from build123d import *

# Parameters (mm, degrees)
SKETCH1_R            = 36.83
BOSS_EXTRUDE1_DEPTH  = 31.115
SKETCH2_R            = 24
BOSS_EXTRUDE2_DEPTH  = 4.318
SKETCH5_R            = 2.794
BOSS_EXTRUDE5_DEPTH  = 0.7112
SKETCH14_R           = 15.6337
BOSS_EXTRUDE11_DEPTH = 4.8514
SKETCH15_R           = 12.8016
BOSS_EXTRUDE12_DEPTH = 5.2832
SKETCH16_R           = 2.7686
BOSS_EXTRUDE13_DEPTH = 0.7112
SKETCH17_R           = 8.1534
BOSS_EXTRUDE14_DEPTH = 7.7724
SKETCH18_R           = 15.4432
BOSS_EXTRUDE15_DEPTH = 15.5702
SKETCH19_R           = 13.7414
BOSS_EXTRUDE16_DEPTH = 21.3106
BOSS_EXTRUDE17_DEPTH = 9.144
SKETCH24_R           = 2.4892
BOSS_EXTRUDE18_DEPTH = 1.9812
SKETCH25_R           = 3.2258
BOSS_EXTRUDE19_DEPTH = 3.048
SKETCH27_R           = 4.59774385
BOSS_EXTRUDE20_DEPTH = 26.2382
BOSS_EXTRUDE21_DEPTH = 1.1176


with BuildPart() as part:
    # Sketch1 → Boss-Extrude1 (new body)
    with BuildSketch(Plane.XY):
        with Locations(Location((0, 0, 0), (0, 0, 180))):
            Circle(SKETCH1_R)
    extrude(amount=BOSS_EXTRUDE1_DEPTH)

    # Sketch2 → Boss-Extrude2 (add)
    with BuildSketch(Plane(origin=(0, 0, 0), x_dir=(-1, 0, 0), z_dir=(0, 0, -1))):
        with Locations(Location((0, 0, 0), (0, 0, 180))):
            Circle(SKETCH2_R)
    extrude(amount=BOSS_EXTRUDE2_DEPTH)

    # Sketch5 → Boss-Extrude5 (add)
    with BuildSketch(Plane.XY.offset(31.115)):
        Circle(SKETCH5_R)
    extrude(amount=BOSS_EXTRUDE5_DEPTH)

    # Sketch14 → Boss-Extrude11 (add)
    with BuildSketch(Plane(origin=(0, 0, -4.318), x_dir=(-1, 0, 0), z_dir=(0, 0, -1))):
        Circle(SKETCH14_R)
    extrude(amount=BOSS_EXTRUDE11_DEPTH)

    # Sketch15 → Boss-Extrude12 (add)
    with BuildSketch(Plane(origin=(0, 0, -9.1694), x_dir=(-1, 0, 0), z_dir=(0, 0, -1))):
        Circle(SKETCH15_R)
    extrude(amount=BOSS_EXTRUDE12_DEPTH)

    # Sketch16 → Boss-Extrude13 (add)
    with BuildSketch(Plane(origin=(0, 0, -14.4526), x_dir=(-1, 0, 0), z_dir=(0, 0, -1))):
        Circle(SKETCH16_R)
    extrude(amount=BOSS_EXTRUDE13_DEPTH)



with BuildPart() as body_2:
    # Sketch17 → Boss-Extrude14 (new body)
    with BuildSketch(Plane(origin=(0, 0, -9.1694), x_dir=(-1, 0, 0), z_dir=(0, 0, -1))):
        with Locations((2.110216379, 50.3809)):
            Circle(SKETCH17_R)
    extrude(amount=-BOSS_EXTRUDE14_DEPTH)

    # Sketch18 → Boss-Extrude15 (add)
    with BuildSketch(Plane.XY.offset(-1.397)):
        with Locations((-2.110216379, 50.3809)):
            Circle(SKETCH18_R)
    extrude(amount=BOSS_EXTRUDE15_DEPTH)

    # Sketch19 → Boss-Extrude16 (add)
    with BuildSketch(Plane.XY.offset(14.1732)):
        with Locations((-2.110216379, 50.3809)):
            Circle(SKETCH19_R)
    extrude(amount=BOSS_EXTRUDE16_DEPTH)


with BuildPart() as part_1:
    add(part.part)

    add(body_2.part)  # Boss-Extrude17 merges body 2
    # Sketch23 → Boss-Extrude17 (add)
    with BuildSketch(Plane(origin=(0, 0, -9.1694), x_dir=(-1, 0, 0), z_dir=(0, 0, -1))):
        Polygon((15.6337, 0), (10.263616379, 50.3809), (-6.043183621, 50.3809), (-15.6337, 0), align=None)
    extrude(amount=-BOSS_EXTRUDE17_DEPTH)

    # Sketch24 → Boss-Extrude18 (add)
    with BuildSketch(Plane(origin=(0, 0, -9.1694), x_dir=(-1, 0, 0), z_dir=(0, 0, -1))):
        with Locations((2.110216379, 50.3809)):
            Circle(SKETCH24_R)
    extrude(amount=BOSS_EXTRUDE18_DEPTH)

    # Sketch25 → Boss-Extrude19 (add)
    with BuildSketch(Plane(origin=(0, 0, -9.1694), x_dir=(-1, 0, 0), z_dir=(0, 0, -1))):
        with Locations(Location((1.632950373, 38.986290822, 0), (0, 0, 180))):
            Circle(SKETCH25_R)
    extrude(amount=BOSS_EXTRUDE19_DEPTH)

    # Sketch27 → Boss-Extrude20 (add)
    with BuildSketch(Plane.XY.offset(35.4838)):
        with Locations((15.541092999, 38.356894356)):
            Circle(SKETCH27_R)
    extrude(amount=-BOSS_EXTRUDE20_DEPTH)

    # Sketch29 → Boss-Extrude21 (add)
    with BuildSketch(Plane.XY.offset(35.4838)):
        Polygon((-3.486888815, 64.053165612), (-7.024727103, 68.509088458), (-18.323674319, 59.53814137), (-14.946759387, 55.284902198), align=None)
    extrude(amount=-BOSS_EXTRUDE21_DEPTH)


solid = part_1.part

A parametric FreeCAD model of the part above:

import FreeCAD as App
import Part
import Sketcher
Q = App.Units.Quantity

doc = App.newDocument("Part")
body = doc.addObject("PartDesign::Body", "Body")

# Sketch on XY plane
sketch1 = body.newObject("Sketcher::SketchObject", "Sketch")
sketch1.AttachmentSupport = (doc.getObject("XY_Plane"), [""])
sketch1.MapMode = "FlatFace"
sketch1.addGeometry(Part.Circle(App.Vector(0, 0, 0), App.Vector(0, 0, 1), 37), False)
sketch1.addConstraint([
    Sketcher.Constraint("Coincident", 0, 3, -1, 1),
    Sketcher.Constraint("Diameter", 0, Q("2.9 in")),
])
pad1 = body.newObject("PartDesign::Pad", "Pad")
pad1.Profile = sketch1
pad1.Length = Q("1.225 in")

# Sketch on XY plane
sketch2 = body.newObject("Sketcher::SketchObject", "Sketch001")
sketch2.AttachmentSupport = (doc.getObject("XY_Plane"), [""])
sketch2.MapMode = "FlatFace"
sketch2.addGeometry(Part.Circle(App.Vector(0, 0, 0), App.Vector(0, 0, 1), 24), False)
sketch2.addConstraint([
    Sketcher.Constraint("Coincident", 0, 3, -1, 1),
    Sketcher.Constraint("Diameter", 0, Q("48 mm")),
])
pad2 = body.newObject("PartDesign::Pad", "Pad001")
pad2.Profile = sketch2
pad2.Length = Q("0.17 in")
pad2.Reversed = True

# Sketch on XY plane
sketch3 = body.newObject("Sketcher::SketchObject", "Sketch002")
sketch3.AttachmentSupport = (doc.getObject("XY_Plane"), [""])
sketch3.MapMode = "FlatFace"
sketch3.AttachmentOffset = App.Placement(App.Vector(0, 0, 1.225 * 25.4), App.Rotation())
sketch3.addGeometry(Part.Circle(App.Vector(0, 0, 0), App.Vector(0, 0, 1), 2.8), False)
sketch3.addConstraint([
    Sketcher.Constraint("Coincident", 0, 3, -1, 1),
    Sketcher.Constraint("Diameter", 0, Q("0.22 in")),
])
pad3 = body.newObject("PartDesign::Pad", "Pad002")
pad3.Profile = sketch3
pad3.Length = Q("0.028 in")

# Sketch on XY plane
sketch4 = body.newObject("Sketcher::SketchObject", "Sketch003")
sketch4.AttachmentSupport = (doc.getObject("XY_Plane"), [""])
sketch4.MapMode = "FlatFace"
sketch4.AttachmentOffset = App.Placement(App.Vector(0, 0, -0.17 * 25.4), App.Rotation())
sketch4.addGeometry(Part.Circle(App.Vector(0, 0, 0), App.Vector(0, 0, 1), 16), False)
sketch4.addConstraint([
    Sketcher.Constraint("Coincident", 0, 3, -1, 1),
    Sketcher.Constraint("Diameter", 0, Q("1.231 in")),
])
pad4 = body.newObject("PartDesign::Pad", "Pad003")
pad4.Profile = sketch4
pad4.Length = Q("0.191 in")
pad4.Reversed = True

# Sketch on XY plane
sketch5 = body.newObject("Sketcher::SketchObject", "Sketch004")
sketch5.AttachmentSupport = (doc.getObject("XY_Plane"), [""])
sketch5.MapMode = "FlatFace"
sketch5.AttachmentOffset = App.Placement(App.Vector(0, 0, -0.361 * 25.4), App.Rotation())
sketch5.addGeometry(Part.Circle(App.Vector(0, 0, 0), App.Vector(0, 0, 1), 13), False)
sketch5.addConstraint([
    Sketcher.Constraint("Coincident", 0, 3, -1, 1),
    Sketcher.Constraint("Diameter", 0, Q("1.008 in")),
])
pad5 = body.newObject("PartDesign::Pad", "Pad004")
pad5.Profile = sketch5
pad5.Length = Q("0.208 in")
pad5.Reversed = True

# Sketch on XY plane
sketch6 = body.newObject("Sketcher::SketchObject", "Sketch005")
sketch6.AttachmentSupport = (doc.getObject("XY_Plane"), [""])
sketch6.MapMode = "FlatFace"
sketch6.AttachmentOffset = App.Placement(App.Vector(0, 0, -0.569 * 25.4), App.Rotation())
sketch6.addGeometry(Part.Circle(App.Vector(0, 0, 0), App.Vector(0, 0, 1), 2.8), False)
sketch6.addConstraint([
    Sketcher.Constraint("Coincident", 0, 3, -1, 1),
    Sketcher.Constraint("Diameter", 0, Q("0.218 in")),
])
pad6 = body.newObject("PartDesign::Pad", "Pad005")
pad6.Profile = sketch6
pad6.Length = Q("0.028 in")
pad6.Reversed = True
body2 = doc.addObject("PartDesign::Body", "Body001")

# Sketch on XY plane
sketch7 = body2.newObject("Sketcher::SketchObject", "Sketch006")
sketch7.AttachmentSupport = (doc.getObject("XY_Plane001"), [""])
sketch7.MapMode = "FlatFace"
sketch7.AttachmentOffset = App.Placement(App.Vector(0, 0, -0.361 * 25.4), App.Rotation())
sketch7.addGeometry(Part.Circle(App.Vector(-2, 50, 0), App.Vector(0, 0, 1), 8), False)
sketch7.addConstraint([
    Sketcher.Constraint("Diameter", 0, Q("0.642 in")),
    Sketcher.Constraint("DistanceY", -1, 1, 0, 3, Q("1.9835 in")),
    Sketcher.Constraint("DistanceX", 0, 3, -1, 1, Q("2.110216 mm")),
])
pad7 = body2.newObject("PartDesign::Pad", "Pad006")
pad7.Profile = sketch7
pad7.Length = Q("0.306 in")

# Sketch on XY plane
sketch8 = body2.newObject("Sketcher::SketchObject", "Sketch007")
sketch8.AttachmentSupport = (doc.getObject("XY_Plane001"), [""])
sketch8.MapMode = "FlatFace"
sketch8.AttachmentOffset = App.Placement(App.Vector(0, 0, -0.055 * 25.4), App.Rotation())
sketch8.addGeometry(Part.Circle(App.Vector(-2, 50, 0), App.Vector(0, 0, 1), 15), False)
sketch8.addConstraint([
    Sketcher.Constraint("Diameter", 0, Q("1.216 in")),
    Sketcher.Constraint("DistanceY", -1, 1, 0, 3, Q("1.9835 in")),
    Sketcher.Constraint("DistanceX", 0, 3, -1, 1, Q("2.110216 mm")),
])
pad8 = body2.newObject("PartDesign::Pad", "Pad007")
pad8.Profile = sketch8
pad8.Length = Q("0.613 in")

# Sketch on XY plane
sketch9 = body2.newObject("Sketcher::SketchObject", "Sketch008")
sketch9.AttachmentSupport = (doc.getObject("XY_Plane001"), [""])
sketch9.MapMode = "FlatFace"
sketch9.AttachmentOffset = App.Placement(App.Vector(0, 0, 0.558 * 25.4), App.Rotation())
sketch9.addGeometry(Part.Circle(App.Vector(-2, 50, 0), App.Vector(0, 0, 1), 14), False)
sketch9.addConstraint([
    Sketcher.Constraint("Diameter", 0, Q("1.082 in")),
    Sketcher.Constraint("DistanceY", -1, 1, 0, 3, Q("1.9835 in")),
    Sketcher.Constraint("DistanceX", 0, 3, -1, 1, Q("2.110216 mm")),
])
pad9 = body2.newObject("PartDesign::Pad", "Pad008")
pad9.Profile = sketch9
pad9.Length = Q("0.839 in")
doc.recompute()

boolean = body.newObject("PartDesign::Boolean", "Boolean")
boolean.Type = "Fuse"
boolean.addObjects([body2])

# Sketch on XY plane
sketch10 = body.newObject("Sketcher::SketchObject", "Sketch009")
sketch10.AttachmentSupport = (doc.getObject("XY_Plane"), [""])
sketch10.MapMode = "FlatFace"
sketch10.AttachmentOffset = App.Placement(App.Vector(0, 0, -0.361 * 25.4), App.Rotation())
sketch10.addGeometry([
    Part.LineSegment(App.Vector(-16, 0, 0), App.Vector(-10, 50, 0)),
    Part.LineSegment(App.Vector(-10, 50, 0), App.Vector(6, 50, 0)),
    Part.LineSegment(App.Vector(6, 50, 0), App.Vector(16, 0, 0)),
    Part.LineSegment(App.Vector(16, 0, 0), App.Vector(-16, 0, 0)),
], False)
sketch10.addConstraint([
    Sketcher.Constraint("Coincident", 0, 2, 1, 1),
    Sketcher.Constraint("Coincident", 1, 2, 2, 1),
    Sketcher.Constraint("Coincident", 2, 2, 3, 1),
    Sketcher.Constraint("Coincident", 3, 2, 0, 1),
    Sketcher.Constraint("Horizontal", 1),
    Sketcher.Constraint("Horizontal", 3),
    Sketcher.Constraint("Symmetric", 2, 2, 3, 2, -1, 1),
    Sketcher.Constraint("DistanceX", 1, 1, 1, 2, Q("0.642 in")),
    Sketcher.Constraint("DistanceX", 3, 2, 3, 1, Q("1.231 in")),
    Sketcher.Constraint("DistanceY", -1, 1, 0, 2, Q("1.9835 in")),
    Sketcher.Constraint("Distance", 0, Q("50.666289 mm")),
])
pad10 = body.newObject("PartDesign::Pad", "Pad009")
pad10.Profile = sketch10
pad10.Length = Q("0.36 in")

# Sketch on XY plane
sketch11 = body.newObject("Sketcher::SketchObject", "Sketch010")
sketch11.AttachmentSupport = (doc.getObject("XY_Plane"), [""])
sketch11.MapMode = "FlatFace"
sketch11.AttachmentOffset = App.Placement(App.Vector(0, 0, -0.361 * 25.4), App.Rotation())
sketch11.addGeometry(Part.Circle(App.Vector(-2.1, 50.4, 0), App.Vector(0, 0, 1), 2.5), False)
sketch11.addConstraint([
    Sketcher.Constraint("Diameter", 0, Q("0.196 in")),
    Sketcher.Constraint("DistanceY", -1, 1, 0, 3, Q("1.9835 in")),
    Sketcher.Constraint("DistanceX", 0, 3, -1, 1, Q("2.110216 mm")),
])
pad11 = body.newObject("PartDesign::Pad", "Pad010")
pad11.Profile = sketch11
pad11.Length = Q("0.078 in")
pad11.Reversed = True

# Sketch on XY plane
sketch12 = body.newObject("Sketcher::SketchObject", "Sketch011")
sketch12.AttachmentSupport = (doc.getObject("XY_Plane"), [""])
sketch12.MapMode = "FlatFace"
sketch12.AttachmentOffset = App.Placement(App.Vector(0, 0, -0.361 * 25.4), App.Rotation())
sketch12.addGeometry(Part.Circle(App.Vector(-1.6, 39, 0), App.Vector(0, 0, 1), 3.2), False)
sketch12.addConstraint([
    Sketcher.Constraint("Diameter", 0, Q("0.254 in")),
    Sketcher.Constraint("DistanceX", 0, 3, -1, 1, Q("1.63295 mm")),
    Sketcher.Constraint("DistanceY", -1, 1, 0, 3, Q("38.986291 mm")),
])
pad12 = body.newObject("PartDesign::Pad", "Pad011")
pad12.Profile = sketch12
pad12.Length = Q("0.12 in")
pad12.Reversed = True

# Sketch on XY plane
sketch13 = body.newObject("Sketcher::SketchObject", "Sketch012")
sketch13.AttachmentSupport = (doc.getObject("XY_Plane"), [""])
sketch13.MapMode = "FlatFace"
sketch13.AttachmentOffset = App.Placement(App.Vector(0, 0, 1.397 * 25.4), App.Rotation())
sketch13.addGeometry(Part.Circle(App.Vector(15.5, 38.4, 0), App.Vector(0, 0, 1), 4.6), False)
sketch13.addConstraint([
    Sketcher.Constraint("Diameter", 0, Q("9.195488 mm")),
    Sketcher.Constraint("DistanceX", -1, 1, 0, 3, Q("15.541093 mm")),
    Sketcher.Constraint("DistanceY", -1, 1, 0, 3, Q("38.356894 mm")),
])
pad13 = body.newObject("PartDesign::Pad", "Pad012")
pad13.Profile = sketch13
pad13.Length = Q("1.033 in")
pad13.Reversed = True

# Sketch on XY plane
sketch14 = body.newObject("Sketcher::SketchObject", "Sketch013")
sketch14.AttachmentSupport = (doc.getObject("XY_Plane"), [""])
sketch14.MapMode = "FlatFace"
sketch14.AttachmentOffset = App.Placement(App.Vector(0, 0, 1.397 * 25.4), App.Rotation())
sketch14.addGeometry([
    Part.LineSegment(App.Vector(-3, 64, 0), App.Vector(-7, 69, 0)),
    Part.LineSegment(App.Vector(-7, 69, 0), App.Vector(-18, 60, 0)),
    Part.LineSegment(App.Vector(-18, 60, 0), App.Vector(-15, 55, 0)),
    Part.LineSegment(App.Vector(-15, 55, 0), App.Vector(-3, 64, 0)),
], False)
sketch14.addConstraint([
    Sketcher.Constraint("Coincident", 0, 2, 1, 1),
    Sketcher.Constraint("Coincident", 1, 2, 2, 1),
    Sketcher.Constraint("Coincident", 2, 2, 3, 1),
    Sketcher.Constraint("Coincident", 3, 2, 0, 1),
    Sketcher.Constraint("Perpendicular", 0, 1),
    Sketcher.Constraint("Perpendicular", 1, 2),
    Sketcher.Constraint("Distance", 0, Q("0.224 in")),
    Sketcher.Constraint("Distance", 1, Q("0.568 in")),
    Sketcher.Constraint("Distance", 2, Q("5.430801 mm")),
    Sketcher.Constraint("DistanceY", -1, 1, 0, 2, Q("68.509088 mm")),
    Sketcher.Constraint("DistanceY", -1, 1, 1, 2, Q("59.538141 mm")),
    Sketcher.Constraint("DistanceX", 2, 2, -1, 1, Q("14.946759 mm")),
])
pad14 = body.newObject("PartDesign::Pad", "Pad013")
pad14.Profile = sketch14
pad14.Length = Q("0.044 in")
pad14.Reversed = True

doc.recompute()
